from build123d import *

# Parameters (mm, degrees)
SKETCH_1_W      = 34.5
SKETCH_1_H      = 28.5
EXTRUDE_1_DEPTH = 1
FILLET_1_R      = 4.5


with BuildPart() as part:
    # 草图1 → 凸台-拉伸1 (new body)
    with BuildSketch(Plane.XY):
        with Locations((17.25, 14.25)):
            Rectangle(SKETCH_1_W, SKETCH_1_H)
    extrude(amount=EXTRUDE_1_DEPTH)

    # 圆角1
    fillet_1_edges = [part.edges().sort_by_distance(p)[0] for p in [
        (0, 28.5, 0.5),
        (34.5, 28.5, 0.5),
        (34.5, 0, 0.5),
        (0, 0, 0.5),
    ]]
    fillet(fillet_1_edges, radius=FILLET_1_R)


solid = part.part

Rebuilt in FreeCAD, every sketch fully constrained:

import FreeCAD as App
import Part
import Sketcher

V = App.Vector


def edges_at(feature, points):
    """Names of the edges that pass closest to the given points."""
    edges = feature.Shape.Edges
    near = lambda p: min(range(len(edges)), key=lambda i: edges[i].distToShape(Part.Vertex(*p))[0])
    return sorted({f"Edge{near(p) + 1}" for p in points})


def add_polygon(sketch, points):
    """Adds a closed chain of lines whose ends are joined by coincident constraints."""
    first, n = sketch.GeometryCount, len(points)
    for a, b in zip(points, points[1:] + points[:1]):
        sketch.addGeometry(Part.LineSegment(App.Vector(*a, 0), App.Vector(*b, 0)), False)
    for i in range(n):
        sketch.addConstraint(Sketcher.Constraint("Coincident", first + i, 2, first + (i + 1) % n, 1))

doc = App.newDocument("Part")
body = doc.addObject("PartDesign::Body", "Body")

# Sketch on XY plane
sketch1 = doc.addObject("Sketcher::SketchObject", "Sketch")
body.addObject(sketch1)
sketch1.AttachmentSupport = (doc.XY_Plane, [""])
sketch1.MapMode = "FlatFace"
add_polygon(sketch1, [(0, 28), (0, 0), (34, 0), (34, 28)])  # lines 0-3
sketch1.addConstraint([
    Sketcher.Constraint("Vertical", 0),
    Sketcher.Constraint("Horizontal", 1),
    Sketcher.Constraint("Vertical", 2),
    Sketcher.Constraint("Horizontal", 3),
    Sketcher.Constraint("Coincident", 0, 2, -1, 1),
    Sketcher.Constraint("DistanceX", 1, 1, 1, 2, 34.5),
    Sketcher.Constraint("DistanceY", 0, 2, 0, 1, 28.5),
])
pad1 = doc.addObject("PartDesign::Pad", "Pad")
body.addObject(pad1)
pad1.Profile = sketch1
pad1.Length = 1
doc.recompute()

fillet = doc.addObject("PartDesign::Fillet", "Fillet")
body.addObject(fillet)
fillet.Base = (pad1, edges_at(pad1, [
    (0, 28.5, 0.5),
    (34.5, 28.5, 0.5),
    (34.5, 0, 0.5),
    (0, 0, 0.5),
]))
fillet.Radius = 4.5

doc.recompute()
